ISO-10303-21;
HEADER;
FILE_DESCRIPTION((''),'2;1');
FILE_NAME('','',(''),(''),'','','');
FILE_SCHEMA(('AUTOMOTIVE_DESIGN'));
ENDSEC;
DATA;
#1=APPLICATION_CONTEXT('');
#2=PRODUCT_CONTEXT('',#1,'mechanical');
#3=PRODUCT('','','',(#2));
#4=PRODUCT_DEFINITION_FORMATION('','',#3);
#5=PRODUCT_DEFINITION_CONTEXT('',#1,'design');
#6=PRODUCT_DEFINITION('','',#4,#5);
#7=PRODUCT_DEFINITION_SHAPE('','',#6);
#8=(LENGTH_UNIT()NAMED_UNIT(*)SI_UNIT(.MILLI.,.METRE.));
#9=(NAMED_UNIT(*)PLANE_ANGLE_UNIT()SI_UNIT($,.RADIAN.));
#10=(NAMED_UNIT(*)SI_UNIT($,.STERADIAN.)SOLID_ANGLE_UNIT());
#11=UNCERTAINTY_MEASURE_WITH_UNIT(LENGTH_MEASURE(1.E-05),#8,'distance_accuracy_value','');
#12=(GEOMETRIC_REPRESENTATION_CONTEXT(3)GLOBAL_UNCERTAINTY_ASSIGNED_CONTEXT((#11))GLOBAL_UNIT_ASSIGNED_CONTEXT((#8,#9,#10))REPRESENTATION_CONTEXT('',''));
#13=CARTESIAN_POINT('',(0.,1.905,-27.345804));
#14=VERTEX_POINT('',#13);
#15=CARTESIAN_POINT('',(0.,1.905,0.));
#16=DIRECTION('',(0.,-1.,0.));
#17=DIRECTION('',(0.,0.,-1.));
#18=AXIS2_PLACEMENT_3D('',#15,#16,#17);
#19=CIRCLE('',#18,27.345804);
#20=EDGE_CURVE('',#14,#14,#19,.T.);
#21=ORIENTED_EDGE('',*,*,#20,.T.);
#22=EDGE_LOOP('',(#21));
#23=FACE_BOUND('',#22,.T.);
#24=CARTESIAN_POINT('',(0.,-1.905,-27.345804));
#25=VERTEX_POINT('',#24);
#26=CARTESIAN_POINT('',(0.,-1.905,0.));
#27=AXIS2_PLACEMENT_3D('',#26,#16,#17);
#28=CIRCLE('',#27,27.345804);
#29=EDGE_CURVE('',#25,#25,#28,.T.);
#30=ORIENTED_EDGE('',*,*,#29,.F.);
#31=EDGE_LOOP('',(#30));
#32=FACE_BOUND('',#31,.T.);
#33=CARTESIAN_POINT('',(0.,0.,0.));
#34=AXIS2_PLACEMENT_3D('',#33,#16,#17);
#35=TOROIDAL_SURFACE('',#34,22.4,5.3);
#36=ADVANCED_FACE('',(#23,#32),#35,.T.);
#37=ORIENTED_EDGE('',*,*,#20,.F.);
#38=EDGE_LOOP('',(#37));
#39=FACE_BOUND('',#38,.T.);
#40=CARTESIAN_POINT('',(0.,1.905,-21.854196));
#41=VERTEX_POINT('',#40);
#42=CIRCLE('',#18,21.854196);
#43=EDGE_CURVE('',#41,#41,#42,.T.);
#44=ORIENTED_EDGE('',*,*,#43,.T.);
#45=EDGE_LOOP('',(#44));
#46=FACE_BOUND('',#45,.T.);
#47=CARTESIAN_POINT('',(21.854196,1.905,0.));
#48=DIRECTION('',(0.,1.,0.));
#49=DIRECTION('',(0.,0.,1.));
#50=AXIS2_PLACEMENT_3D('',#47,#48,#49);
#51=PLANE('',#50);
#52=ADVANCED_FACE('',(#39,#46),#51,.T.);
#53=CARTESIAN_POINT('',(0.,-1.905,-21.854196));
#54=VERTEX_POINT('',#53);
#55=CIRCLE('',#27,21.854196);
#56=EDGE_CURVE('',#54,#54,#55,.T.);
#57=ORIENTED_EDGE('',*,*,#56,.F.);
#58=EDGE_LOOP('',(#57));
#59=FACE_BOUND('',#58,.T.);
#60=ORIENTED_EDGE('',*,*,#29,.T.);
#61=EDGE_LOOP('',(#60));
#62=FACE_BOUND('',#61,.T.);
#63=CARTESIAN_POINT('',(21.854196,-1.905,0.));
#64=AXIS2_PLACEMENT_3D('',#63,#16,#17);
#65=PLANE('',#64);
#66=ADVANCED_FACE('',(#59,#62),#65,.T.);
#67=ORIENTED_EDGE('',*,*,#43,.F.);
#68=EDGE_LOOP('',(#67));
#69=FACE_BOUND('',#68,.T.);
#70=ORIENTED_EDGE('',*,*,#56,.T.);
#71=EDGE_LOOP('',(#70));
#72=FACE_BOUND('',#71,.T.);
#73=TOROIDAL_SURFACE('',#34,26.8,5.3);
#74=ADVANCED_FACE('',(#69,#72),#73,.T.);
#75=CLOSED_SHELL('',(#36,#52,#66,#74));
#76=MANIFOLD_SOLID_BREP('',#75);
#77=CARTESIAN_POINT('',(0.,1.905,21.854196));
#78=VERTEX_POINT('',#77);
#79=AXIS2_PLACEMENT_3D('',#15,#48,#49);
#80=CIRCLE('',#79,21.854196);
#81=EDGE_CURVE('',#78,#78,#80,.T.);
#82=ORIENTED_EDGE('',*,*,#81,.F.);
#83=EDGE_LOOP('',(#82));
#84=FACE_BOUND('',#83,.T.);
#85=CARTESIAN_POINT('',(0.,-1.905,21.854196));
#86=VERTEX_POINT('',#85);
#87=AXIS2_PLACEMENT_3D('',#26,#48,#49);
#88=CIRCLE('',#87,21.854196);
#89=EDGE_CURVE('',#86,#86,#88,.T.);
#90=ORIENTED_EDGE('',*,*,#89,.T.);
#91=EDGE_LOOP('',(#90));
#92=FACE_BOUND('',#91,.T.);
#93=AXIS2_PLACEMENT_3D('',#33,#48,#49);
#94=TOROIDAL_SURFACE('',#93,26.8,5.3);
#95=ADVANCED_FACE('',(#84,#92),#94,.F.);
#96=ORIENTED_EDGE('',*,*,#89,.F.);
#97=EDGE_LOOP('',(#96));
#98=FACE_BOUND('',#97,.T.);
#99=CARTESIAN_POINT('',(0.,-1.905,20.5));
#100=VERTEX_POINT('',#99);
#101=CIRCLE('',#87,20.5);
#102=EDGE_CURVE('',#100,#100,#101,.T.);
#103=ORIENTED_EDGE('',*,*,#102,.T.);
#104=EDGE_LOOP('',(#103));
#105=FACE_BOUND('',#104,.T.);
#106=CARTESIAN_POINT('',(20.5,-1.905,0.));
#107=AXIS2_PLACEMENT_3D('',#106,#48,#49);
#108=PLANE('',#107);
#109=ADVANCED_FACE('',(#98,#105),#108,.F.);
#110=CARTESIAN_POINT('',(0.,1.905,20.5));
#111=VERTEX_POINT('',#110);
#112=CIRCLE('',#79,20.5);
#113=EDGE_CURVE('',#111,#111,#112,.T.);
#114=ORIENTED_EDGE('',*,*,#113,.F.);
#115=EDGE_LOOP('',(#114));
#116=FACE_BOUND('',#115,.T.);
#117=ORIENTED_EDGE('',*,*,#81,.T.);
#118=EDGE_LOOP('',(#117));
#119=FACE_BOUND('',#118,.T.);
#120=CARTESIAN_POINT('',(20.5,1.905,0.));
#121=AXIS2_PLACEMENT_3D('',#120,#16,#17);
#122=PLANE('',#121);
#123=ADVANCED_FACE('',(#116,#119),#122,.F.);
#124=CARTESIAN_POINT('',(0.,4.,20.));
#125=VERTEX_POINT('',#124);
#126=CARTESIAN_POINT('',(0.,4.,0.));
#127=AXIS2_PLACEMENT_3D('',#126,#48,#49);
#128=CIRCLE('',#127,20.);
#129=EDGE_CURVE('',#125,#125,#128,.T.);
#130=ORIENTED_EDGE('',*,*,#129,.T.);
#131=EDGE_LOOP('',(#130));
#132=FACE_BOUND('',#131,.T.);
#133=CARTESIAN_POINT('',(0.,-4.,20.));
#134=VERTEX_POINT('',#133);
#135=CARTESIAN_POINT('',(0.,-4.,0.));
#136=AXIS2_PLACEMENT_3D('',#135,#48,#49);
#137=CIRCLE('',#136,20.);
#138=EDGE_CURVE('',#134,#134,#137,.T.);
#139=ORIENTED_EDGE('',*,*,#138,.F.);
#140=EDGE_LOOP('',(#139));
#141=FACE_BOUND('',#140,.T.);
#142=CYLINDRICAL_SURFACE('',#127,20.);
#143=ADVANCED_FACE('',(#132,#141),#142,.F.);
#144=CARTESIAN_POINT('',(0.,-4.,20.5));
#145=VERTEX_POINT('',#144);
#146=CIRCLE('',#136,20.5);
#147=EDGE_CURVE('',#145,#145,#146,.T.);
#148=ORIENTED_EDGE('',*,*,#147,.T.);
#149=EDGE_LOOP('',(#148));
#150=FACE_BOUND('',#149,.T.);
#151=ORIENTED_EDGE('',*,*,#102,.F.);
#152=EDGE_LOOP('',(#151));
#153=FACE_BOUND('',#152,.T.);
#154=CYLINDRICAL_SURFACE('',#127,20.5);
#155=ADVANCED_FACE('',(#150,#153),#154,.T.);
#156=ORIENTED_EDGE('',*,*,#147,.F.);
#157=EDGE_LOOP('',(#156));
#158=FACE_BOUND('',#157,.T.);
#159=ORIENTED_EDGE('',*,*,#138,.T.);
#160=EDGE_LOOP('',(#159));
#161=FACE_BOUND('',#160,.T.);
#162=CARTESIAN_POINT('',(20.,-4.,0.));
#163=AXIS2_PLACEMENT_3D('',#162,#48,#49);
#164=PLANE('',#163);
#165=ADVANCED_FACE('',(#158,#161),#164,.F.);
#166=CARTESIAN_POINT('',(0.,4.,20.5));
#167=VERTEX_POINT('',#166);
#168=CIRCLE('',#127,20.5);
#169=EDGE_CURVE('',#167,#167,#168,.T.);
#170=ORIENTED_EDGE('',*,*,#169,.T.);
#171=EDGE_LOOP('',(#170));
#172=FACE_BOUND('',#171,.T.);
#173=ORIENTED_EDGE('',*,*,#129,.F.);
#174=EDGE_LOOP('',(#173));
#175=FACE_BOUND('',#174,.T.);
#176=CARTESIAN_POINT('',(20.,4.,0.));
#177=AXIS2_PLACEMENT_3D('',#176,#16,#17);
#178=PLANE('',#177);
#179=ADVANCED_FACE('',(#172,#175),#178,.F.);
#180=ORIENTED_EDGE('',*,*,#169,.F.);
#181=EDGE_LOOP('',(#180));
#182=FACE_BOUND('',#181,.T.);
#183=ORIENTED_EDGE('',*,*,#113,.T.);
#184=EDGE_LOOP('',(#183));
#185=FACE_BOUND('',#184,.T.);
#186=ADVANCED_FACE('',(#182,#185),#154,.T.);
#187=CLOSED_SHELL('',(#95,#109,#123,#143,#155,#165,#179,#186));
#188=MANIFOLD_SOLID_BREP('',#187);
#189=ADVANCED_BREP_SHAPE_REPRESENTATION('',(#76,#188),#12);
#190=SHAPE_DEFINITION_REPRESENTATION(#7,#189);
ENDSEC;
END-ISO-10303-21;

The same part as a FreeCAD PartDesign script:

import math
import FreeCAD as App
import Part
import Sketcher
from FreeCAD import Vector

doc = App.newDocument("Part")
body = doc.addObject("PartDesign::Body", "Body")

# Sketch on XY plane
sketch1 = doc.addObject("Sketcher::SketchObject", "Sketch")
body.addObject(sketch1)
sketch1.AttachmentSupport = (doc.XY_Plane, [""])
sketch1.MapMode = "FlatFace"
sketch1.addGeometry([
    Part.LineSegment(Vector(20, 4, 0), Vector(20, -4, 0)),  # 0
    Part.LineSegment(Vector(20, -4, 0), Vector(20.5, -4, 0)),  # 1
    Part.LineSegment(Vector(20.5, -4, 0), Vector(20.5, -1.9, 0)),  # 2
    Part.LineSegment(Vector(20.5, -1.9, 0), Vector(21.9, -1.9, 0)),  # 3
    Part.ArcOfCircle(Part.Circle(Vector(26.8, 0, 0), Vector(0, 0, 1), 5.3), math.radians(159), math.radians(201)),  # 4
    Part.LineSegment(Vector(21.9, 1.9, 0), Vector(20.5, 1.9, 0)),  # 5
    Part.LineSegment(Vector(20.5, 1.9, 0), Vector(20.5, 4, 0)),  # 6
    Part.LineSegment(Vector(20.5, 4, 0), Vector(20, 4, 0)),  # 7
], False)
sketch1.addConstraint([
    Sketcher.Constraint("Coincident", 0, 2, 1, 1),
    Sketcher.Constraint("Coincident", 1, 2, 2, 1),
    Sketcher.Constraint("Coincident", 2, 2, 3, 1),
    Sketcher.Constraint("Coincident", 3, 2, 4, 2),
    Sketcher.Constraint("Coincident", 4, 1, 5, 1),
    Sketcher.Constraint("Coincident", 5, 2, 6, 1),
    Sketcher.Constraint("Coincident", 6, 2, 7, 1),
    Sketcher.Constraint("Coincident", 7, 2, 0, 1),
    Sketcher.Constraint("Vertical", 0),
    Sketcher.Constraint("Horizontal", 1),
    Sketcher.Constraint("Vertical", 2),
    Sketcher.Constraint("Horizontal", 3),
    Sketcher.Constraint("Horizontal", 5),
    Sketcher.Constraint("Vertical", 6),
    Sketcher.Constraint("Horizontal", 7),
    Sketcher.Constraint("Symmetric", 3, 2, 4, 1, -1),
    Sketcher.Constraint("Symmetric", 1, 2, 6, 2, -1),
    Sketcher.Constraint("Radius", 4, 5.3),
    Sketcher.Constraint("DistanceY", 0, 2, 0, 1, 8.0),
    Sketcher.Constraint("DistanceX", 1, 1, 1, 2, 0.5),
    Sketcher.Constraint("DistanceX", -1, 1, 0, 2, 20.0),
    Sketcher.Constraint("DistanceX", -1, 1, 4, 3, 26.8),
    Sketcher.Constraint("DistanceY", 2, 1, 2, 2, 2.095),
])
revolution = doc.addObject("PartDesign::Revolution", "Revolution")
body.addObject(revolution)
revolution.Profile = sketch1
revolution.ReferenceAxis = (sketch1, ["V_Axis"])
revolution.Angle = 360
body2 = doc.addObject("PartDesign::Body", "Body001")

# Sketch on XY plane
sketch2 = doc.addObject("Sketcher::SketchObject", "Sketch001")
body2.addObject(sketch2)
sketch2.AttachmentSupport = (doc.getObject("XY_Plane001"), [""])
sketch2.MapMode = "FlatFace"
sketch2.addGeometry([
    Part.LineSegment(Vector(27.3, 1.9, 0), Vector(21.9, 1.9, 0)),
    Part.ArcOfCircle(Part.Circle(Vector(26.8, 0, 0), Vector(0, 0, 1), 5.3), math.radians(159), math.radians(201)),
    Part.LineSegment(Vector(21.9, -1.9, 0), Vector(27.3, -1.9, 0)),
    Part.ArcOfCircle(Part.Circle(Vector(22.4, 0, 0), Vector(0, 0, 1), 5.3), math.radians(-21), math.radians(21)),
], False)
sketch2.addConstraint([
    Sketcher.Constraint("Coincident", 0, 2, 1, 1),
    Sketcher.Constraint("Coincident", 1, 2, 2, 1),
    Sketcher.Constraint("Coincident", 2, 2, 3, 1),
    Sketcher.Constraint("Coincident", 3, 2, 0, 1),
    Sketcher.Constraint("Horizontal", 0),
    Sketcher.Constraint("Horizontal", 2),
    Sketcher.Constraint("Equal", 1, 3),
    Sketcher.Constraint("Symmetric", 0, 2, 1, 2, -1),
    Sketcher.Constraint("PointOnObject", 3, 3, -1),
    Sketcher.Constraint("Radius", 1, 5.3),
    Sketcher.Constraint("DistanceX", -1, 1, 1, 3, 26.8),
    Sketcher.Constraint("DistanceX", -1, 1, 3, 3, 22.4),
    Sketcher.Constraint("DistanceY", 1, 2, 0, 2, 3.81),
])
revolution2 = doc.addObject("PartDesign::Revolution", "Revolution001")
body2.addObject(revolution2)
revolution2.Profile = sketch2
revolution2.ReferenceAxis = (sketch2, ["V_Axis"])
revolution2.Angle = 360

doc.recompute()
